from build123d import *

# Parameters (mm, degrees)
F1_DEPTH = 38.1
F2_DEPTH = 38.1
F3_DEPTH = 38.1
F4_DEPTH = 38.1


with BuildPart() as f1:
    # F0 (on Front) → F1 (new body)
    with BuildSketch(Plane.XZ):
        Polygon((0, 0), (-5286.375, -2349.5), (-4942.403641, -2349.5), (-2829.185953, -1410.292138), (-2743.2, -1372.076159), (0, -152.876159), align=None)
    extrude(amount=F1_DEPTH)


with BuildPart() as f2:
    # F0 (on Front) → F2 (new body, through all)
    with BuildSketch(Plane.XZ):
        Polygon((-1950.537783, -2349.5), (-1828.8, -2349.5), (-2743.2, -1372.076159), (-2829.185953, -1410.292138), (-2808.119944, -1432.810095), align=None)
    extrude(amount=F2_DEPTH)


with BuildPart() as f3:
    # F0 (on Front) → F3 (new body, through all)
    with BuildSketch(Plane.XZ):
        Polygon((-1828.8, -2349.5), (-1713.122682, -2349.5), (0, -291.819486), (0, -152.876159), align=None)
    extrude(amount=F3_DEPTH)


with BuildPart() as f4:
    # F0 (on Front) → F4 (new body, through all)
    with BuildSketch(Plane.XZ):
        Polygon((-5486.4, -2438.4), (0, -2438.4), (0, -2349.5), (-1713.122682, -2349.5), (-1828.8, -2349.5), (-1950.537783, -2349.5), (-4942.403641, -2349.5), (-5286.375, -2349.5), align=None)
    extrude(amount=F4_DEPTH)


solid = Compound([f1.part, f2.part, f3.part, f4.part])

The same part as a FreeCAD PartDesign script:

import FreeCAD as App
import Part
import Sketcher
from FreeCAD import Vector
Q = App.Units.Quantity

doc = App.newDocument("Part")
body = doc.addObject("PartDesign::Body", "Body")

sketch1 = body.newObject("Sketcher::SketchObject", "Sketch")
sketch1.AttachmentSupport = (doc.getObject("XZ_Plane"), [""])
sketch1.MapMode = "FlatFace"
sketch1.addGeometry([
    Part.LineSegment(Vector(0, 0, 0), Vector(-5286, -2350, 0)),
    Part.LineSegment(Vector(-5286, -2350, 0), Vector(-4942, -2350, 0)),
    Part.LineSegment(Vector(-4942, -2350, 0), Vector(-2829, -1410, 0)),
    Part.LineSegment(Vector(-2829, -1410, 0), Vector(-2743, -1372, 0)),
    Part.LineSegment(Vector(-2743, -1372, 0), Vector(0, -153, 0)),
    Part.LineSegment(Vector(0, -153, 0), Vector(0, 0, 0)),
], False)
sketch1.addConstraint([
    Sketcher.Constraint("Coincident", 0, 2, 1, 1),
    Sketcher.Constraint("Coincident", 1, 2, 2, 1),
    Sketcher.Constraint("Coincident", 2, 2, 3, 1),
    Sketcher.Constraint("Coincident", 3, 2, 4, 1),
    Sketcher.Constraint("Coincident", 4, 2, 5, 1),
    Sketcher.Constraint("Coincident", 5, 2, 0, 1),
    Sketcher.Constraint("Horizontal", 1),
    Sketcher.Constraint("Vertical", 5),
    Sketcher.Constraint("Coincident", 5, 2, -1, 1),
    Sketcher.Constraint("Parallel", 0, 2),
    Sketcher.Constraint("Parallel", 2, 3),
    Sketcher.Constraint("Parallel", 3, 4),
    Sketcher.Constraint("DistanceX", 3, 2, -1, 1, Q("108 in")),
    Sketcher.Constraint("DistanceY", 3, 2, 4, 2, Q("48 in")),
    Sketcher.Constraint("DistanceY", 0, 2, -1, 1, Q("92.5 in")),
    Sketcher.Constraint("DistanceX", 1, 1, 1, 2, Q("343.971359 mm")),
    Sketcher.Constraint("Distance", 2, Q("2312.531168 mm")),
])
pad1 = body.newObject("PartDesign::Pad", "Pad")
pad1.Profile = sketch1
pad1.Length = Q("1.5 in")
body2 = doc.addObject("PartDesign::Body", "Body001")

sketch2 = body2.newObject("Sketcher::SketchObject", "Sketch001")
sketch2.AttachmentSupport = (doc.getObject("XZ_Plane001"), [""])
sketch2.MapMode = "FlatFace"
sketch2.addGeometry([
    Part.LineSegment(Vector(-1951, -2350, 0), Vector(-1829, -2350, 0)),
    Part.LineSegment(Vector(-1829, -2350, 0), Vector(-2743, -1372, 0)),
    Part.LineSegment(Vector(-2743, -1372, 0), Vector(-2829, -1410, 0)),
    Part.LineSegment(Vector(-2829, -1410, 0), Vector(-2808, -1433, 0)),
    Part.LineSegment(Vector(-2808, -1433, 0), Vector(-1951, -2350, 0)),
], False)
sketch2.addConstraint([
    Sketcher.Constraint("Coincident", 0, 2, 1, 1),
    Sketcher.Constraint("Coincident", 1, 2, 2, 1),
    Sketcher.Constraint("Coincident", 2, 2, 3, 1),
    Sketcher.Constraint("Coincident", 3, 2, 4, 1),
    Sketcher.Constraint("Coincident", 4, 2, 0, 1),
    Sketcher.Constraint("Horizontal", 0),
    Sketcher.Constraint("Parallel", 1, 3),
    Sketcher.Constraint("Parallel", 3, 4),
    Sketcher.Constraint("DistanceX", 0, 2, -1, 1, Q("72 in")),
    Sketcher.Constraint("DistanceX", 1, 2, -1, 1, Q("108 in")),
    Sketcher.Constraint("DistanceY", 0, 2, -1, 1, Q("92.5 in")),
    Sketcher.Constraint("DistanceY", 3, 2, 1, 2, Q("2.3910998 in")),
    Sketcher.Constraint("Distance", 4, Q("1255.2958 mm")),
    Sketcher.Constraint("DistanceX", 0, 1, 0, 2, Q("121.737783 mm")),
    Sketcher.Constraint("DistanceY", 2, 2, -1, 1, Q("1410.292138 mm")),
])
pad2 = body2.newObject("PartDesign::Pad", "Pad001")
pad2.Profile = sketch2
pad2.Length = Q("1.5 in")
body3 = doc.addObject("PartDesign::Body", "Body002")

sketch3 = body3.newObject("Sketcher::SketchObject", "Sketch002")
sketch3.AttachmentSupport = (doc.getObject("XZ_Plane002"), [""])
sketch3.MapMode = "FlatFace"
sketch3.addGeometry([
    Part.LineSegment(Vector(-1829, -2350, 0), Vector(-1713, -2350, 0)),
    Part.LineSegment(Vector(-1713, -2350, 0), Vector(0, -292, 0)),
    Part.LineSegment(Vector(0, -292, 0), Vector(0, -153, 0)),
    Part.LineSegment(Vector(0, -153, 0), Vector(-1829, -2350, 0)),
], False)
sketch3.addConstraint([
    Sketcher.Constraint("Coincident", 0, 2, 1, 1),
    Sketcher.Constraint("Coincident", 1, 2, 2, 1),
    Sketcher.Constraint("Coincident", 2, 2, 3, 1),
    Sketcher.Constraint("Coincident", 3, 2, 0, 1),
    Sketcher.Constraint("Horizontal", 0),
    Sketcher.Constraint("Vertical", 2),
    Sketcher.Constraint("PointOnObject", 1, 2, -2),
    Sketcher.Constraint("Parallel", 1, 3),
    Sketcher.Constraint("DistanceX", 3, 2, -1, 1, Q("72 in")),
    Sketcher.Constraint("DistanceY", 0, 2, -1, 1, Q("92.5 in")),
    Sketcher.Constraint("DistanceX", 0, 1, 0, 2, Q("115.677318 mm")),
    Sketcher.Constraint("Distance", 1, Q("2677.468659 mm")),
])
pad3 = body3.newObject("PartDesign::Pad", "Pad002")
pad3.Profile = sketch3
pad3.Length = Q("1.5 in")
body4 = doc.addObject("PartDesign::Body", "Body003")

sketch4 = body4.newObject("Sketcher::SketchObject", "Sketch003")
sketch4.AttachmentSupport = (doc.getObject("XZ_Plane003"), [""])
sketch4.MapMode = "FlatFace"
sketch4.addGeometry([
    Part.LineSegment(Vector(-5486, -2438, 0), Vector(0, -2438, 0)),
    Part.LineSegment(Vector(0, -2438, 0), Vector(0, -2350, 0)),
    Part.LineSegment(Vector(0, -2350, 0), Vector(-5286, -2350, 0)),
    Part.LineSegment(Vector(-5286, -2350, 0), Vector(-5486, -2438, 0)),
], False)
sketch4.addConstraint([
    Sketcher.Constraint("Coincident", 0, 2, 1, 1),
    Sketcher.Constraint("Coincident", 1, 2, 2, 1),
    Sketcher.Constraint("Coincident", 2, 2, 3, 1),
    Sketcher.Constraint("Coincident", 3, 2, 0, 1),
    Sketcher.Constraint("Horizontal", 0),
    Sketcher.Constraint("Vertical", 1),
    Sketcher.Constraint("Horizontal", 2),
    Sketcher.Constraint("PointOnObject", 0, 2, -2),
    Sketcher.Constraint("DistanceX", 0, 1, 0, 2, Q("216 in")),
    Sketcher.Constraint("DistanceY", 1, 1, 1, 2, Q("3.5 in")),
    Sketcher.Constraint("DistanceY", 0, 2, -1, 1, Q("96 in")),
    Sketcher.Constraint("DistanceX", 2, 2, 2, 1, Q("208.125 in")),
])
pad4 = body4.newObject("PartDesign::Pad", "Pad003")
pad4.Profile = sketch4
pad4.Length = Q("1.5 in")

doc.recompute()
